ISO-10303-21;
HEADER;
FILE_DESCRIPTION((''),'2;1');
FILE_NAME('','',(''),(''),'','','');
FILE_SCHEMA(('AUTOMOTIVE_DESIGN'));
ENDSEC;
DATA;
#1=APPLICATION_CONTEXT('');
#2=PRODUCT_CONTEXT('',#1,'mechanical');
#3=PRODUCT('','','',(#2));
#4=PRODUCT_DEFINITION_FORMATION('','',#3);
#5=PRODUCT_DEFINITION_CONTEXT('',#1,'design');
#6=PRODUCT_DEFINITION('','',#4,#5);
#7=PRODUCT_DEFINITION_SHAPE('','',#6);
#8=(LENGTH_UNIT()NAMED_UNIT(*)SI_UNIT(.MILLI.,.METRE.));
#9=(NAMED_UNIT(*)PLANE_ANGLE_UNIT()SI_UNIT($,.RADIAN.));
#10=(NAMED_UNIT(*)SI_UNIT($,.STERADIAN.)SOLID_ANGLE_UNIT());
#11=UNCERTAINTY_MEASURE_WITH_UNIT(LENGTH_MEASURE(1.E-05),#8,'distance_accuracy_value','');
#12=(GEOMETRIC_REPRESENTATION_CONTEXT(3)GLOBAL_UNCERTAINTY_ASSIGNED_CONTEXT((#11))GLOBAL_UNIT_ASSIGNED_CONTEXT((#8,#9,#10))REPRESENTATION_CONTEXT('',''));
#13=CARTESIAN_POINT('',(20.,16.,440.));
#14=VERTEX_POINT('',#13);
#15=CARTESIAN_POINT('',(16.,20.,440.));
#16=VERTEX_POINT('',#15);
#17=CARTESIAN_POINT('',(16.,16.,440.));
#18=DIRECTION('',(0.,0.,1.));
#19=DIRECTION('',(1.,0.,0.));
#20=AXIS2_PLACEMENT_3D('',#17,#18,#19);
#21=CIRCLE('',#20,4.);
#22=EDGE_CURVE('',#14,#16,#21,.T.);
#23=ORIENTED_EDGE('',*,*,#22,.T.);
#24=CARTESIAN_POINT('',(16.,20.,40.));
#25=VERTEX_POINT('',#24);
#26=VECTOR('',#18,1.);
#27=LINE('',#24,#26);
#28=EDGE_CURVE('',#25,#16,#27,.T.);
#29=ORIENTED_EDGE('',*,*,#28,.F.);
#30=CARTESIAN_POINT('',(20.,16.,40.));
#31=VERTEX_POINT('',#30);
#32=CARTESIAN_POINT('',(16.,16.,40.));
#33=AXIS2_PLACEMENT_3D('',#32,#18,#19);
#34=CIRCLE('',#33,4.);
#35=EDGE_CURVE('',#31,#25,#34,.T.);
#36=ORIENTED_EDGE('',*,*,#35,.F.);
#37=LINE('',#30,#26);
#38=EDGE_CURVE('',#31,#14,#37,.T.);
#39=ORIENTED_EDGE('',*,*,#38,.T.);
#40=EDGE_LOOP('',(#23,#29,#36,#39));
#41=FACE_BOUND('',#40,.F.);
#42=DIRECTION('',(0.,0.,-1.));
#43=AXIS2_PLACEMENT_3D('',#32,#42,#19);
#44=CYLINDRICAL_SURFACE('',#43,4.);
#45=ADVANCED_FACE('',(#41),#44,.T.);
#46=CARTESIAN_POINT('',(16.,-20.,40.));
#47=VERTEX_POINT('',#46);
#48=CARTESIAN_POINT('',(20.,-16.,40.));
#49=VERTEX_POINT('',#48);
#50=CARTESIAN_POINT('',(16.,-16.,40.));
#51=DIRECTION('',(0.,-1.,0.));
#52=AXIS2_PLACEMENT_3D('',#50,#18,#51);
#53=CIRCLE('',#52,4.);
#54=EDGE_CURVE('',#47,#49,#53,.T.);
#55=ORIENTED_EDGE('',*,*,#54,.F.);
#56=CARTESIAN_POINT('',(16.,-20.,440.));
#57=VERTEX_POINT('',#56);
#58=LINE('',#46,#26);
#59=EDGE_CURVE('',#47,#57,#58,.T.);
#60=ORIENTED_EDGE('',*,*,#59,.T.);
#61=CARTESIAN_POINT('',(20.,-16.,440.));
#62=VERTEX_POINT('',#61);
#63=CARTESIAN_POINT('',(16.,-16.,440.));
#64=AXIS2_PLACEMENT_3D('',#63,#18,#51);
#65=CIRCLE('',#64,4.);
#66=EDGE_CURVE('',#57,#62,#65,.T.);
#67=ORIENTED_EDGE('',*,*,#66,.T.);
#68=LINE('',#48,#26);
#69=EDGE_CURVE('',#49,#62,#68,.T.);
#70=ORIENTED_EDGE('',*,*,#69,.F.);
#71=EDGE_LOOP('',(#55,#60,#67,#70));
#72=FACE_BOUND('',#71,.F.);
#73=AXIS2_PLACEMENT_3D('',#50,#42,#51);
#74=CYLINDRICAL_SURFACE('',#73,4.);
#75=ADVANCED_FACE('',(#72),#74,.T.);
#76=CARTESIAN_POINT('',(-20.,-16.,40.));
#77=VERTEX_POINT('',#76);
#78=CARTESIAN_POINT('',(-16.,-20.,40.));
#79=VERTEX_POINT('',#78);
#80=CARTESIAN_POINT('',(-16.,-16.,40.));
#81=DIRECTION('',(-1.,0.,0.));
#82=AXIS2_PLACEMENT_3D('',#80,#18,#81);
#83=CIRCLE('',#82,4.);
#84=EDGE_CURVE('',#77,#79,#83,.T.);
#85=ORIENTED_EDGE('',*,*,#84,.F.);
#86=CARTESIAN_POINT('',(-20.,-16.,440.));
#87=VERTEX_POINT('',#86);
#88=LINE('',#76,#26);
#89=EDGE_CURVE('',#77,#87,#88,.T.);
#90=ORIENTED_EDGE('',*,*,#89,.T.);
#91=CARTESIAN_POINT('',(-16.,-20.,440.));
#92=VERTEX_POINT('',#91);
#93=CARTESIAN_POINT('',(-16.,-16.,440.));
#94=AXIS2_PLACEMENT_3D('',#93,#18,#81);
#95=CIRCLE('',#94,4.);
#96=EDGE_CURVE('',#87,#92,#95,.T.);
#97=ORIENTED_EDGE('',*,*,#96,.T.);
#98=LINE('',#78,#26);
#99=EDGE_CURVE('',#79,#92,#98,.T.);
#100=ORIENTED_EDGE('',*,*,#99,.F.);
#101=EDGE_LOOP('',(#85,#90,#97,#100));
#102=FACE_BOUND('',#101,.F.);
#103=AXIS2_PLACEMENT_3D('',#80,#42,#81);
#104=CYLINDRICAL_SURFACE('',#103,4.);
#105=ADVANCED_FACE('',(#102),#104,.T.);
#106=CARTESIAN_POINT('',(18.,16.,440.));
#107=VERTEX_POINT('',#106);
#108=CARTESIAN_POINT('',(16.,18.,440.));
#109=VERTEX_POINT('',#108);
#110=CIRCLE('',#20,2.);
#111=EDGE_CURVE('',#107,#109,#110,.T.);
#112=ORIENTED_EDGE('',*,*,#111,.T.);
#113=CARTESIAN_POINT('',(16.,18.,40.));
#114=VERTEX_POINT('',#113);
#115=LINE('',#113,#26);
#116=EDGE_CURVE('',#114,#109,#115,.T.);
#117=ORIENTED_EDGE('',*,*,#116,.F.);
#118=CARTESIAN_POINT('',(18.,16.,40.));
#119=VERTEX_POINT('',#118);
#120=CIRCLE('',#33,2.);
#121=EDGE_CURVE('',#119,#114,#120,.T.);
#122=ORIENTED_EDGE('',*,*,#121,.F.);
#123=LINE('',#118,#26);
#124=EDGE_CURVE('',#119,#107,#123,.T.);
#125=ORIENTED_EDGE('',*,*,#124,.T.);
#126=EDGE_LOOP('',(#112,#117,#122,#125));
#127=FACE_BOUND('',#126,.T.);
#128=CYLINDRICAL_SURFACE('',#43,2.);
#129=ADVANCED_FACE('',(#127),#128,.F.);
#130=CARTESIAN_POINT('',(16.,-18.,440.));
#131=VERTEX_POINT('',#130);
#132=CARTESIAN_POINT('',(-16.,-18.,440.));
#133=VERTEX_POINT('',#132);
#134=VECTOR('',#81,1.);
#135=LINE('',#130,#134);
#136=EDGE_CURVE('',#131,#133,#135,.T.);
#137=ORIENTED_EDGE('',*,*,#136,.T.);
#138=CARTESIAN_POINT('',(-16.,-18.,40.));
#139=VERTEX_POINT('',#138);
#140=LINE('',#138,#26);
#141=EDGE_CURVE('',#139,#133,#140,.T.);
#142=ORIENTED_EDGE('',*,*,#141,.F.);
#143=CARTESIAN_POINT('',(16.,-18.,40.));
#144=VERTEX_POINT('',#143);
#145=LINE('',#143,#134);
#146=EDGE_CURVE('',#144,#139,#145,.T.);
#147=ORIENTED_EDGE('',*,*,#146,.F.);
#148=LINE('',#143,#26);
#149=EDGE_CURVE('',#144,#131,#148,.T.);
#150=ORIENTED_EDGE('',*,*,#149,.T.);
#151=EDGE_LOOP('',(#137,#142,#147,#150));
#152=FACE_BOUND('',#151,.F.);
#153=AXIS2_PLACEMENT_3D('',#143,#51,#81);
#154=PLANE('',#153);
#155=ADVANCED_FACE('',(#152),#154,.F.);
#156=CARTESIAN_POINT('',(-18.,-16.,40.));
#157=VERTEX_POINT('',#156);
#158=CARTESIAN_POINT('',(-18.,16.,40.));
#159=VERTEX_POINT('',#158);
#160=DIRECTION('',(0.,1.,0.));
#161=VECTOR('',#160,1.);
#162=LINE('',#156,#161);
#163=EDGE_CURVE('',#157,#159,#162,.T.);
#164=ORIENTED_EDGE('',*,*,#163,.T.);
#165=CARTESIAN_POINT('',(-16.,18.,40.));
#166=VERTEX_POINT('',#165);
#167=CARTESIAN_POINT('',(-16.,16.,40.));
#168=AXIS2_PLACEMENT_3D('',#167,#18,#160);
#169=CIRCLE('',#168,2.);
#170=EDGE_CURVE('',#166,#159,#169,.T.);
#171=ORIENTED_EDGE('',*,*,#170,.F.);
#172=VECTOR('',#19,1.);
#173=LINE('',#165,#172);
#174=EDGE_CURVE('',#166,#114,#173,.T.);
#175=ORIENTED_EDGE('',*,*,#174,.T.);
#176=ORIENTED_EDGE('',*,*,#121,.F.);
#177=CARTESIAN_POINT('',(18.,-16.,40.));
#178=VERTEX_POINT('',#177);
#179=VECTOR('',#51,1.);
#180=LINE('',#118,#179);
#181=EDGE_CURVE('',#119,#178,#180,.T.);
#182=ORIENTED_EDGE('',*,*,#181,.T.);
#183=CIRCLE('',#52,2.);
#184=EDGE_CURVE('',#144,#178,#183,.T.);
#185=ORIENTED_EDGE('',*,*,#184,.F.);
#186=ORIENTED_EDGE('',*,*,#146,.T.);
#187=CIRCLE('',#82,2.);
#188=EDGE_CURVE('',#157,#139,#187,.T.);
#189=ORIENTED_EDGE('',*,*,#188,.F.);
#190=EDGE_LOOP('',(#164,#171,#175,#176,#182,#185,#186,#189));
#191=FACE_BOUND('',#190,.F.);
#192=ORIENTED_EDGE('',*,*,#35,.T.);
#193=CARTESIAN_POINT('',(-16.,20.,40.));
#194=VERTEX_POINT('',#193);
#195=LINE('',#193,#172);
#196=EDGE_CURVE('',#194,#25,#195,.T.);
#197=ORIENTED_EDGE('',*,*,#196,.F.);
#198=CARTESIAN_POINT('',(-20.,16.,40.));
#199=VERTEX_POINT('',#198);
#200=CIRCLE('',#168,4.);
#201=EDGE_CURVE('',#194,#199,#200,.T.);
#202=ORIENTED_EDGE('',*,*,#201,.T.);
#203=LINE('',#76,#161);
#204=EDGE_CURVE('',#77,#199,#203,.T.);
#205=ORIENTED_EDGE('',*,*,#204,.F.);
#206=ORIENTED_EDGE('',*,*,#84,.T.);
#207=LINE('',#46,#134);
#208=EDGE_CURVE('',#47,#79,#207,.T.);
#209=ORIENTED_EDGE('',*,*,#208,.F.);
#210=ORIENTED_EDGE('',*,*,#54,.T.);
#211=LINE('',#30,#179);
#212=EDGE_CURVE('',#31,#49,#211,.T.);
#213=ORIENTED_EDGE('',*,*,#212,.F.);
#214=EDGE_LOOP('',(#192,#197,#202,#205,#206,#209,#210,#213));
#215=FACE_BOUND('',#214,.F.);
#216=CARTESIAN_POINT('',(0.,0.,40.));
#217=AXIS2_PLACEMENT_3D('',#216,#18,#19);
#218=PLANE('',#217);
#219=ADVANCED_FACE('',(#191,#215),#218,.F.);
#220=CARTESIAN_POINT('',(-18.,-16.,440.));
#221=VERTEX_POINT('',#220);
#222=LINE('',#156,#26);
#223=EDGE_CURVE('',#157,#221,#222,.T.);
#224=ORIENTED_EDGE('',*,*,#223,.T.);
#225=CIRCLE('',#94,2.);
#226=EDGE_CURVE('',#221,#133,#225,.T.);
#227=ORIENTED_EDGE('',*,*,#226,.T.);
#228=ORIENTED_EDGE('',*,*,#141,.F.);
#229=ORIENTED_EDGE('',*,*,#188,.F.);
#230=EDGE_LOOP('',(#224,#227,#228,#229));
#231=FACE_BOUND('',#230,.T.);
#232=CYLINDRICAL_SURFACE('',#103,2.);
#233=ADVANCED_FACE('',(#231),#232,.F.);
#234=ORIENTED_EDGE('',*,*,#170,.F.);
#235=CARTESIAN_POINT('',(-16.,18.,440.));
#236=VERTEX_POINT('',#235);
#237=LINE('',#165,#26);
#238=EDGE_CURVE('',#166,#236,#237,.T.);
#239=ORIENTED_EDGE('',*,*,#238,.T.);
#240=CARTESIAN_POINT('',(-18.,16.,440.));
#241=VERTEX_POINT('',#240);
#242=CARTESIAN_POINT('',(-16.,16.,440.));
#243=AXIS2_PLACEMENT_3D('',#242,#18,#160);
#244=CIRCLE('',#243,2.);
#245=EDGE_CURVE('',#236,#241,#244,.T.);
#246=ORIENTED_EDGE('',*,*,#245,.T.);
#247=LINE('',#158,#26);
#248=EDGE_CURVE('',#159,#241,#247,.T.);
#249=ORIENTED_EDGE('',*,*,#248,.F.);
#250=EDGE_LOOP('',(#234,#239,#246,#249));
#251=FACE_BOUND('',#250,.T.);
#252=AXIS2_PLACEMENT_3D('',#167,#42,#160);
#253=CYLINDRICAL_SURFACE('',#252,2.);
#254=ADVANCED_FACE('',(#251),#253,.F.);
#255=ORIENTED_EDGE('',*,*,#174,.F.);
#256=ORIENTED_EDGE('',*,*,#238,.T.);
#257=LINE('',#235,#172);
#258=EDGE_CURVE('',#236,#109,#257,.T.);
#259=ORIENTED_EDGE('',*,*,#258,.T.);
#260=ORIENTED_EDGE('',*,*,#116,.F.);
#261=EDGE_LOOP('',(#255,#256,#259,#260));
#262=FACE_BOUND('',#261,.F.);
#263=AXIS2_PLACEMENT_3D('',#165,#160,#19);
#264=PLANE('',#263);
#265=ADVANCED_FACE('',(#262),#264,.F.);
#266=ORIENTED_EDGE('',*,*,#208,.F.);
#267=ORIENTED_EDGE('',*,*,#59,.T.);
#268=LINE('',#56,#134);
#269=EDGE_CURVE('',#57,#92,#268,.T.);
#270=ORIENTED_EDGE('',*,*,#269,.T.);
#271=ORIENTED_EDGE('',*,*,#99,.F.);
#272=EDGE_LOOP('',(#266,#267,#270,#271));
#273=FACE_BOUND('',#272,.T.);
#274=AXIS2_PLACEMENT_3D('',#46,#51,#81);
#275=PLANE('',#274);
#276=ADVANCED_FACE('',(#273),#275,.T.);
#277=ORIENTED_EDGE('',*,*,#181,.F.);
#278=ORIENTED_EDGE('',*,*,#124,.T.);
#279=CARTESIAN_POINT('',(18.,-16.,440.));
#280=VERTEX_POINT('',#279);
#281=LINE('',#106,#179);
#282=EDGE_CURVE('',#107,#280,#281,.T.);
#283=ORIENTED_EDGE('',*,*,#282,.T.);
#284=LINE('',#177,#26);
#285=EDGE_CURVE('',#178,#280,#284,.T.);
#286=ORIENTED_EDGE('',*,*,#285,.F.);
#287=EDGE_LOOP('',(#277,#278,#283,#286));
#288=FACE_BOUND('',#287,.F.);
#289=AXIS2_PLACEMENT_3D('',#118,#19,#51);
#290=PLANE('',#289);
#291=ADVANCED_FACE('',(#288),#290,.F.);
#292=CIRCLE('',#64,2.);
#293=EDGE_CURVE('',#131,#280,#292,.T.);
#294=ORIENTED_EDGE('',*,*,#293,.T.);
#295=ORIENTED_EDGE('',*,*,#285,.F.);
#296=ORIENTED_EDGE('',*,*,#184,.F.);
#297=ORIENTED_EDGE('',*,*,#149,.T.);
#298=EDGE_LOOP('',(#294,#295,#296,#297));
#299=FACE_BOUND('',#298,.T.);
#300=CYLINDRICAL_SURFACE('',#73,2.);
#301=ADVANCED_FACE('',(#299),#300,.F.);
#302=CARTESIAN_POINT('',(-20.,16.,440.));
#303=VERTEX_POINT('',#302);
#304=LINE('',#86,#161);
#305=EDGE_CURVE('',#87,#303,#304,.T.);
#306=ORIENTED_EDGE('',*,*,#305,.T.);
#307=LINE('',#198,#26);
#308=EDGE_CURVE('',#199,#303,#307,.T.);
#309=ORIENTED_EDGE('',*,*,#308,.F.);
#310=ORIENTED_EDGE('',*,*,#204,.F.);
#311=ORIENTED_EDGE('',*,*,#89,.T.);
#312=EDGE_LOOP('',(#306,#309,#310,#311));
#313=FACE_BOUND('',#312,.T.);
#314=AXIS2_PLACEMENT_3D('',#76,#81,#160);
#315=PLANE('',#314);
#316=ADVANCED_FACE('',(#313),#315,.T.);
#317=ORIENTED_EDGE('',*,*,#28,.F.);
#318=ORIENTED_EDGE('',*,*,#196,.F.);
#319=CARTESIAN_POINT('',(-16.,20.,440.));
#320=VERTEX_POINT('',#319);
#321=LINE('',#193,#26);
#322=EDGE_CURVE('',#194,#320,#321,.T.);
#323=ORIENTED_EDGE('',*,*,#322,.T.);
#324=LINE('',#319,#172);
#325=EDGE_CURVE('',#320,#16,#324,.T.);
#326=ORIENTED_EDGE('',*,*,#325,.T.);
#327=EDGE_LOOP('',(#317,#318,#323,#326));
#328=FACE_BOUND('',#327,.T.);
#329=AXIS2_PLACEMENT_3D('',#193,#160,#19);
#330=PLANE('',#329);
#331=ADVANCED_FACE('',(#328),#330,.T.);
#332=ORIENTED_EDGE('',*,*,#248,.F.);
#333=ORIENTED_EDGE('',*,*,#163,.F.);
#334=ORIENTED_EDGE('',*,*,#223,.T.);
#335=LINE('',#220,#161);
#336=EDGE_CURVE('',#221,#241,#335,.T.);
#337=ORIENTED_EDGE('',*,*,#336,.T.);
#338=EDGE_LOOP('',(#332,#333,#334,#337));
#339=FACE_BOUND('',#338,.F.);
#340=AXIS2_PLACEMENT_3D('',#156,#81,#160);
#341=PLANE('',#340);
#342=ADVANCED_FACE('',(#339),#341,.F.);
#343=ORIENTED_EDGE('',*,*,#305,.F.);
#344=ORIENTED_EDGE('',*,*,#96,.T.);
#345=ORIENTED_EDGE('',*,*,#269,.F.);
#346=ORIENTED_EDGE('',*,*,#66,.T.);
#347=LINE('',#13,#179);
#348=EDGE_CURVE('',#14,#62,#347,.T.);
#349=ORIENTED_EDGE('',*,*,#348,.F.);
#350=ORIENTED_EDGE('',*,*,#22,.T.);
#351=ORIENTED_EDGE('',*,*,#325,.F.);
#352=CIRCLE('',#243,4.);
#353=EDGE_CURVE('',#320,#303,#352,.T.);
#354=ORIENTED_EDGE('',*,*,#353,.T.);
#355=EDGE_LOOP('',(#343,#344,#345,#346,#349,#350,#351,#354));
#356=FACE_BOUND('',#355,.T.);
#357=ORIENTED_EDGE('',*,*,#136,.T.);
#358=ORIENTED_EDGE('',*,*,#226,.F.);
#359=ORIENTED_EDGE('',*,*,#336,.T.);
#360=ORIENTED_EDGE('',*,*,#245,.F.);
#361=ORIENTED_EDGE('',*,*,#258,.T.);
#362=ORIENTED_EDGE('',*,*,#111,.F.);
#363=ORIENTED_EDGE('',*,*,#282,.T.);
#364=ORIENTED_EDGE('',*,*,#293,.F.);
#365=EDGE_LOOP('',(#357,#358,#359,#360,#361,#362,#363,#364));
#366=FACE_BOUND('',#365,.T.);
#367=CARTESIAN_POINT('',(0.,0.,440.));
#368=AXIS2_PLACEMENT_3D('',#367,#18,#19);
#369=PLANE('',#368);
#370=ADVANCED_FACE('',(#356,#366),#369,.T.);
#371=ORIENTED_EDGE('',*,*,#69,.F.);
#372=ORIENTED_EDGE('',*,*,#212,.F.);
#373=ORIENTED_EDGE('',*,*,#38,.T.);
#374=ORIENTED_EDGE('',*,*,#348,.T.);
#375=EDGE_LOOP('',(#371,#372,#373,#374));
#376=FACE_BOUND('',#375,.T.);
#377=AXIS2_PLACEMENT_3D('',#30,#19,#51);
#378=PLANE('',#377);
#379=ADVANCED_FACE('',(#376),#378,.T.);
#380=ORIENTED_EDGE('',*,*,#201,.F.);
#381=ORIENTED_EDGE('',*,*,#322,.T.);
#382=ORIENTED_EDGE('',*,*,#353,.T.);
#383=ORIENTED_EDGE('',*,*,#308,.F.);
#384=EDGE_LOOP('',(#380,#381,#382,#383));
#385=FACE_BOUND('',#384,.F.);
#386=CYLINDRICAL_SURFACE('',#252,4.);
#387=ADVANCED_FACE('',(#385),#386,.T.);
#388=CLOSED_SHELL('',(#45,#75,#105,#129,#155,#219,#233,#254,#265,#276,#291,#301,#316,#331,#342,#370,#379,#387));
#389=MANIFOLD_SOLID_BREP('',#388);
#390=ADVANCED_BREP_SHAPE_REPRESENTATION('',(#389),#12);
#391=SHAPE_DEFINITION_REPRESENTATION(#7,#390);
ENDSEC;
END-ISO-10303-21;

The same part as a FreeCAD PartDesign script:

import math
import FreeCAD as App
import Part
import Sketcher
Q = App.Units.Quantity

doc = App.newDocument("Part")
params = doc.addObject("Spreadsheet::Sheet", "Params")
for row, (alias, value) in enumerate([
    ("sketch1_radius", "4 mm"),
    ("sketch1_radius2", "2 mm"),
    ("pad1_length", "400 mm"),
], start=1):
    params.set(f"A{row}", alias)
    params.set(f"B{row}", "=" + value)
    params.setAlias(f"B{row}", alias)

body = doc.addObject("PartDesign::Body", "Body")

# Sketch on XY plane
sketch1 = doc.addObject("Sketcher::SketchObject", "Sketch")
body.addObject(sketch1)
sketch1.AttachmentSupport = (doc.XY_Plane, [""])
sketch1.MapMode = "FlatFace"
sketch1.AttachmentOffset = App.Placement(App.Vector(0, 0, 40), App.Rotation())
sketch1.addGeometry([
    Part.LineSegment(App.Vector(-20, 16, 0), App.Vector(-20, -16, 0)),  # 0
    Part.ArcOfCircle(Part.Circle(App.Vector(-16, -16, 0), App.Vector(0, 0, 1), 4), math.radians(180), math.radians(270)),  # 1
    Part.LineSegment(App.Vector(-16, -20, 0), App.Vector(16, -20, 0)),  # 2
    Part.ArcOfCircle(Part.Circle(App.Vector(16, -16, 0), App.Vector(0, 0, 1), 4), math.radians(-90), math.radians(0)),  # 3
    Part.LineSegment(App.Vector(20, -16, 0), App.Vector(20, 16, 0)),  # 4
    Part.ArcOfCircle(Part.Circle(App.Vector(16, 16, 0), App.Vector(0, 0, 1), 4), math.radians(0), math.radians(90)),  # 5
    Part.LineSegment(App.Vector(16, 20, 0), App.Vector(-16, 20, 0)),  # 6
    Part.ArcOfCircle(Part.Circle(App.Vector(-16, 16, 0), App.Vector(0, 0, 1), 4), math.radians(90), math.radians(180)),  # 7
    Part.ArcOfCircle(Part.Circle(App.Vector(-16, 16, 0), App.Vector(0, 0, 1), 2), math.radians(90), math.radians(180)),  # 8
    Part.LineSegment(App.Vector(-16, 18, 0), App.Vector(16, 18, 0)),  # 9
    Part.ArcOfCircle(Part.Circle(App.Vector(16, 16, 0), App.Vector(0, 0, 1), 2), math.radians(0), math.radians(90)),  # 10
    Part.LineSegment(App.Vector(18, 16, 0), App.Vector(18, -16, 0)),  # 11
    Part.ArcOfCircle(Part.Circle(App.Vector(16, -16, 0), App.Vector(0, 0, 1), 2), math.radians(-90), math.radians(0)),  # 12
    Part.LineSegment(App.Vector(16, -18, 0), App.Vector(-16, -18, 0)),  # 13
    Part.ArcOfCircle(Part.Circle(App.Vector(-16, -16, 0), App.Vector(0, 0, 1), 2), math.radians(180), math.radians(270)),  # 14
    Part.LineSegment(App.Vector(-18, -16, 0), App.Vector(-18, 16, 0)),  # 15
], False)
sketch1.addConstraint([
    Sketcher.Constraint("Tangent", 0, 2, 1, 1),
    Sketcher.Constraint("Tangent", 1, 2, 2, 1),
    Sketcher.Constraint("Tangent", 2, 2, 3, 1),
    Sketcher.Constraint("Tangent", 3, 2, 4, 1),
    Sketcher.Constraint("Tangent", 4, 2, 5, 1),
    Sketcher.Constraint("Tangent", 5, 2, 6, 1),
    Sketcher.Constraint("Tangent", 6, 2, 7, 1),
    Sketcher.Constraint("Tangent", 7, 2, 0, 1),
    Sketcher.Constraint("Tangent", 8, 1, 9, 1),
    Sketcher.Constraint("Tangent", 9, 2, 10, 2),
    Sketcher.Constraint("Tangent", 10, 1, 11, 1),
    Sketcher.Constraint("Tangent", 11, 2, 12, 2),
    Sketcher.Constraint("Tangent", 12, 1, 13, 1),
    Sketcher.Constraint("Tangent", 13, 2, 14, 2),
    Sketcher.Constraint("Tangent", 14, 1, 15, 1),
    Sketcher.Constraint("Tangent", 15, 2, 8, 2),
    Sketcher.Constraint("Vertical", 0),
    Sketcher.Constraint("Horizontal", 2),
    Sketcher.Constraint("Vertical", 4),
    Sketcher.Constraint("Horizontal", 6),
    Sketcher.Constraint("Horizontal", 9),
    Sketcher.Constraint("Vertical", 11),
    Sketcher.Constraint("Horizontal", 13),
    Sketcher.Constraint("Vertical", 15),
    Sketcher.Constraint("Coincident", 8, 3, 7, 3),
    Sketcher.Constraint("Coincident", 10, 3, 5, 3),
    Sketcher.Constraint("Coincident", 12, 3, 3, 3),
    Sketcher.Constraint("Equal", 1, 3),
    Sketcher.Constraint("Equal", 3, 5),
    Sketcher.Constraint("Equal", 5, 7),
    Sketcher.Constraint("Equal", 12, 14),
    Sketcher.Constraint("Symmetric", 1, 3, 5, 3, -1, 1),
    Sketcher.Constraint("Equal", 13, 0),
    Sketcher.Constraint("Radius", 1, Q("4 mm")),
    Sketcher.Constraint("Radius", 8, Q("2 mm")),
    Sketcher.Constraint("DistanceX", 0, 2, -1, 1, Q("20 mm")),
])
sketch1.setExpression("Constraints[33]", "Params.sketch1_radius")
sketch1.setExpression("Constraints[34]", "Params.sketch1_radius2")
pad1 = doc.addObject("PartDesign::Pad", "Pad")
body.addObject(pad1)
pad1.Profile = sketch1
pad1.setExpression("Length", "Params.pad1_length")

doc.recompute()
